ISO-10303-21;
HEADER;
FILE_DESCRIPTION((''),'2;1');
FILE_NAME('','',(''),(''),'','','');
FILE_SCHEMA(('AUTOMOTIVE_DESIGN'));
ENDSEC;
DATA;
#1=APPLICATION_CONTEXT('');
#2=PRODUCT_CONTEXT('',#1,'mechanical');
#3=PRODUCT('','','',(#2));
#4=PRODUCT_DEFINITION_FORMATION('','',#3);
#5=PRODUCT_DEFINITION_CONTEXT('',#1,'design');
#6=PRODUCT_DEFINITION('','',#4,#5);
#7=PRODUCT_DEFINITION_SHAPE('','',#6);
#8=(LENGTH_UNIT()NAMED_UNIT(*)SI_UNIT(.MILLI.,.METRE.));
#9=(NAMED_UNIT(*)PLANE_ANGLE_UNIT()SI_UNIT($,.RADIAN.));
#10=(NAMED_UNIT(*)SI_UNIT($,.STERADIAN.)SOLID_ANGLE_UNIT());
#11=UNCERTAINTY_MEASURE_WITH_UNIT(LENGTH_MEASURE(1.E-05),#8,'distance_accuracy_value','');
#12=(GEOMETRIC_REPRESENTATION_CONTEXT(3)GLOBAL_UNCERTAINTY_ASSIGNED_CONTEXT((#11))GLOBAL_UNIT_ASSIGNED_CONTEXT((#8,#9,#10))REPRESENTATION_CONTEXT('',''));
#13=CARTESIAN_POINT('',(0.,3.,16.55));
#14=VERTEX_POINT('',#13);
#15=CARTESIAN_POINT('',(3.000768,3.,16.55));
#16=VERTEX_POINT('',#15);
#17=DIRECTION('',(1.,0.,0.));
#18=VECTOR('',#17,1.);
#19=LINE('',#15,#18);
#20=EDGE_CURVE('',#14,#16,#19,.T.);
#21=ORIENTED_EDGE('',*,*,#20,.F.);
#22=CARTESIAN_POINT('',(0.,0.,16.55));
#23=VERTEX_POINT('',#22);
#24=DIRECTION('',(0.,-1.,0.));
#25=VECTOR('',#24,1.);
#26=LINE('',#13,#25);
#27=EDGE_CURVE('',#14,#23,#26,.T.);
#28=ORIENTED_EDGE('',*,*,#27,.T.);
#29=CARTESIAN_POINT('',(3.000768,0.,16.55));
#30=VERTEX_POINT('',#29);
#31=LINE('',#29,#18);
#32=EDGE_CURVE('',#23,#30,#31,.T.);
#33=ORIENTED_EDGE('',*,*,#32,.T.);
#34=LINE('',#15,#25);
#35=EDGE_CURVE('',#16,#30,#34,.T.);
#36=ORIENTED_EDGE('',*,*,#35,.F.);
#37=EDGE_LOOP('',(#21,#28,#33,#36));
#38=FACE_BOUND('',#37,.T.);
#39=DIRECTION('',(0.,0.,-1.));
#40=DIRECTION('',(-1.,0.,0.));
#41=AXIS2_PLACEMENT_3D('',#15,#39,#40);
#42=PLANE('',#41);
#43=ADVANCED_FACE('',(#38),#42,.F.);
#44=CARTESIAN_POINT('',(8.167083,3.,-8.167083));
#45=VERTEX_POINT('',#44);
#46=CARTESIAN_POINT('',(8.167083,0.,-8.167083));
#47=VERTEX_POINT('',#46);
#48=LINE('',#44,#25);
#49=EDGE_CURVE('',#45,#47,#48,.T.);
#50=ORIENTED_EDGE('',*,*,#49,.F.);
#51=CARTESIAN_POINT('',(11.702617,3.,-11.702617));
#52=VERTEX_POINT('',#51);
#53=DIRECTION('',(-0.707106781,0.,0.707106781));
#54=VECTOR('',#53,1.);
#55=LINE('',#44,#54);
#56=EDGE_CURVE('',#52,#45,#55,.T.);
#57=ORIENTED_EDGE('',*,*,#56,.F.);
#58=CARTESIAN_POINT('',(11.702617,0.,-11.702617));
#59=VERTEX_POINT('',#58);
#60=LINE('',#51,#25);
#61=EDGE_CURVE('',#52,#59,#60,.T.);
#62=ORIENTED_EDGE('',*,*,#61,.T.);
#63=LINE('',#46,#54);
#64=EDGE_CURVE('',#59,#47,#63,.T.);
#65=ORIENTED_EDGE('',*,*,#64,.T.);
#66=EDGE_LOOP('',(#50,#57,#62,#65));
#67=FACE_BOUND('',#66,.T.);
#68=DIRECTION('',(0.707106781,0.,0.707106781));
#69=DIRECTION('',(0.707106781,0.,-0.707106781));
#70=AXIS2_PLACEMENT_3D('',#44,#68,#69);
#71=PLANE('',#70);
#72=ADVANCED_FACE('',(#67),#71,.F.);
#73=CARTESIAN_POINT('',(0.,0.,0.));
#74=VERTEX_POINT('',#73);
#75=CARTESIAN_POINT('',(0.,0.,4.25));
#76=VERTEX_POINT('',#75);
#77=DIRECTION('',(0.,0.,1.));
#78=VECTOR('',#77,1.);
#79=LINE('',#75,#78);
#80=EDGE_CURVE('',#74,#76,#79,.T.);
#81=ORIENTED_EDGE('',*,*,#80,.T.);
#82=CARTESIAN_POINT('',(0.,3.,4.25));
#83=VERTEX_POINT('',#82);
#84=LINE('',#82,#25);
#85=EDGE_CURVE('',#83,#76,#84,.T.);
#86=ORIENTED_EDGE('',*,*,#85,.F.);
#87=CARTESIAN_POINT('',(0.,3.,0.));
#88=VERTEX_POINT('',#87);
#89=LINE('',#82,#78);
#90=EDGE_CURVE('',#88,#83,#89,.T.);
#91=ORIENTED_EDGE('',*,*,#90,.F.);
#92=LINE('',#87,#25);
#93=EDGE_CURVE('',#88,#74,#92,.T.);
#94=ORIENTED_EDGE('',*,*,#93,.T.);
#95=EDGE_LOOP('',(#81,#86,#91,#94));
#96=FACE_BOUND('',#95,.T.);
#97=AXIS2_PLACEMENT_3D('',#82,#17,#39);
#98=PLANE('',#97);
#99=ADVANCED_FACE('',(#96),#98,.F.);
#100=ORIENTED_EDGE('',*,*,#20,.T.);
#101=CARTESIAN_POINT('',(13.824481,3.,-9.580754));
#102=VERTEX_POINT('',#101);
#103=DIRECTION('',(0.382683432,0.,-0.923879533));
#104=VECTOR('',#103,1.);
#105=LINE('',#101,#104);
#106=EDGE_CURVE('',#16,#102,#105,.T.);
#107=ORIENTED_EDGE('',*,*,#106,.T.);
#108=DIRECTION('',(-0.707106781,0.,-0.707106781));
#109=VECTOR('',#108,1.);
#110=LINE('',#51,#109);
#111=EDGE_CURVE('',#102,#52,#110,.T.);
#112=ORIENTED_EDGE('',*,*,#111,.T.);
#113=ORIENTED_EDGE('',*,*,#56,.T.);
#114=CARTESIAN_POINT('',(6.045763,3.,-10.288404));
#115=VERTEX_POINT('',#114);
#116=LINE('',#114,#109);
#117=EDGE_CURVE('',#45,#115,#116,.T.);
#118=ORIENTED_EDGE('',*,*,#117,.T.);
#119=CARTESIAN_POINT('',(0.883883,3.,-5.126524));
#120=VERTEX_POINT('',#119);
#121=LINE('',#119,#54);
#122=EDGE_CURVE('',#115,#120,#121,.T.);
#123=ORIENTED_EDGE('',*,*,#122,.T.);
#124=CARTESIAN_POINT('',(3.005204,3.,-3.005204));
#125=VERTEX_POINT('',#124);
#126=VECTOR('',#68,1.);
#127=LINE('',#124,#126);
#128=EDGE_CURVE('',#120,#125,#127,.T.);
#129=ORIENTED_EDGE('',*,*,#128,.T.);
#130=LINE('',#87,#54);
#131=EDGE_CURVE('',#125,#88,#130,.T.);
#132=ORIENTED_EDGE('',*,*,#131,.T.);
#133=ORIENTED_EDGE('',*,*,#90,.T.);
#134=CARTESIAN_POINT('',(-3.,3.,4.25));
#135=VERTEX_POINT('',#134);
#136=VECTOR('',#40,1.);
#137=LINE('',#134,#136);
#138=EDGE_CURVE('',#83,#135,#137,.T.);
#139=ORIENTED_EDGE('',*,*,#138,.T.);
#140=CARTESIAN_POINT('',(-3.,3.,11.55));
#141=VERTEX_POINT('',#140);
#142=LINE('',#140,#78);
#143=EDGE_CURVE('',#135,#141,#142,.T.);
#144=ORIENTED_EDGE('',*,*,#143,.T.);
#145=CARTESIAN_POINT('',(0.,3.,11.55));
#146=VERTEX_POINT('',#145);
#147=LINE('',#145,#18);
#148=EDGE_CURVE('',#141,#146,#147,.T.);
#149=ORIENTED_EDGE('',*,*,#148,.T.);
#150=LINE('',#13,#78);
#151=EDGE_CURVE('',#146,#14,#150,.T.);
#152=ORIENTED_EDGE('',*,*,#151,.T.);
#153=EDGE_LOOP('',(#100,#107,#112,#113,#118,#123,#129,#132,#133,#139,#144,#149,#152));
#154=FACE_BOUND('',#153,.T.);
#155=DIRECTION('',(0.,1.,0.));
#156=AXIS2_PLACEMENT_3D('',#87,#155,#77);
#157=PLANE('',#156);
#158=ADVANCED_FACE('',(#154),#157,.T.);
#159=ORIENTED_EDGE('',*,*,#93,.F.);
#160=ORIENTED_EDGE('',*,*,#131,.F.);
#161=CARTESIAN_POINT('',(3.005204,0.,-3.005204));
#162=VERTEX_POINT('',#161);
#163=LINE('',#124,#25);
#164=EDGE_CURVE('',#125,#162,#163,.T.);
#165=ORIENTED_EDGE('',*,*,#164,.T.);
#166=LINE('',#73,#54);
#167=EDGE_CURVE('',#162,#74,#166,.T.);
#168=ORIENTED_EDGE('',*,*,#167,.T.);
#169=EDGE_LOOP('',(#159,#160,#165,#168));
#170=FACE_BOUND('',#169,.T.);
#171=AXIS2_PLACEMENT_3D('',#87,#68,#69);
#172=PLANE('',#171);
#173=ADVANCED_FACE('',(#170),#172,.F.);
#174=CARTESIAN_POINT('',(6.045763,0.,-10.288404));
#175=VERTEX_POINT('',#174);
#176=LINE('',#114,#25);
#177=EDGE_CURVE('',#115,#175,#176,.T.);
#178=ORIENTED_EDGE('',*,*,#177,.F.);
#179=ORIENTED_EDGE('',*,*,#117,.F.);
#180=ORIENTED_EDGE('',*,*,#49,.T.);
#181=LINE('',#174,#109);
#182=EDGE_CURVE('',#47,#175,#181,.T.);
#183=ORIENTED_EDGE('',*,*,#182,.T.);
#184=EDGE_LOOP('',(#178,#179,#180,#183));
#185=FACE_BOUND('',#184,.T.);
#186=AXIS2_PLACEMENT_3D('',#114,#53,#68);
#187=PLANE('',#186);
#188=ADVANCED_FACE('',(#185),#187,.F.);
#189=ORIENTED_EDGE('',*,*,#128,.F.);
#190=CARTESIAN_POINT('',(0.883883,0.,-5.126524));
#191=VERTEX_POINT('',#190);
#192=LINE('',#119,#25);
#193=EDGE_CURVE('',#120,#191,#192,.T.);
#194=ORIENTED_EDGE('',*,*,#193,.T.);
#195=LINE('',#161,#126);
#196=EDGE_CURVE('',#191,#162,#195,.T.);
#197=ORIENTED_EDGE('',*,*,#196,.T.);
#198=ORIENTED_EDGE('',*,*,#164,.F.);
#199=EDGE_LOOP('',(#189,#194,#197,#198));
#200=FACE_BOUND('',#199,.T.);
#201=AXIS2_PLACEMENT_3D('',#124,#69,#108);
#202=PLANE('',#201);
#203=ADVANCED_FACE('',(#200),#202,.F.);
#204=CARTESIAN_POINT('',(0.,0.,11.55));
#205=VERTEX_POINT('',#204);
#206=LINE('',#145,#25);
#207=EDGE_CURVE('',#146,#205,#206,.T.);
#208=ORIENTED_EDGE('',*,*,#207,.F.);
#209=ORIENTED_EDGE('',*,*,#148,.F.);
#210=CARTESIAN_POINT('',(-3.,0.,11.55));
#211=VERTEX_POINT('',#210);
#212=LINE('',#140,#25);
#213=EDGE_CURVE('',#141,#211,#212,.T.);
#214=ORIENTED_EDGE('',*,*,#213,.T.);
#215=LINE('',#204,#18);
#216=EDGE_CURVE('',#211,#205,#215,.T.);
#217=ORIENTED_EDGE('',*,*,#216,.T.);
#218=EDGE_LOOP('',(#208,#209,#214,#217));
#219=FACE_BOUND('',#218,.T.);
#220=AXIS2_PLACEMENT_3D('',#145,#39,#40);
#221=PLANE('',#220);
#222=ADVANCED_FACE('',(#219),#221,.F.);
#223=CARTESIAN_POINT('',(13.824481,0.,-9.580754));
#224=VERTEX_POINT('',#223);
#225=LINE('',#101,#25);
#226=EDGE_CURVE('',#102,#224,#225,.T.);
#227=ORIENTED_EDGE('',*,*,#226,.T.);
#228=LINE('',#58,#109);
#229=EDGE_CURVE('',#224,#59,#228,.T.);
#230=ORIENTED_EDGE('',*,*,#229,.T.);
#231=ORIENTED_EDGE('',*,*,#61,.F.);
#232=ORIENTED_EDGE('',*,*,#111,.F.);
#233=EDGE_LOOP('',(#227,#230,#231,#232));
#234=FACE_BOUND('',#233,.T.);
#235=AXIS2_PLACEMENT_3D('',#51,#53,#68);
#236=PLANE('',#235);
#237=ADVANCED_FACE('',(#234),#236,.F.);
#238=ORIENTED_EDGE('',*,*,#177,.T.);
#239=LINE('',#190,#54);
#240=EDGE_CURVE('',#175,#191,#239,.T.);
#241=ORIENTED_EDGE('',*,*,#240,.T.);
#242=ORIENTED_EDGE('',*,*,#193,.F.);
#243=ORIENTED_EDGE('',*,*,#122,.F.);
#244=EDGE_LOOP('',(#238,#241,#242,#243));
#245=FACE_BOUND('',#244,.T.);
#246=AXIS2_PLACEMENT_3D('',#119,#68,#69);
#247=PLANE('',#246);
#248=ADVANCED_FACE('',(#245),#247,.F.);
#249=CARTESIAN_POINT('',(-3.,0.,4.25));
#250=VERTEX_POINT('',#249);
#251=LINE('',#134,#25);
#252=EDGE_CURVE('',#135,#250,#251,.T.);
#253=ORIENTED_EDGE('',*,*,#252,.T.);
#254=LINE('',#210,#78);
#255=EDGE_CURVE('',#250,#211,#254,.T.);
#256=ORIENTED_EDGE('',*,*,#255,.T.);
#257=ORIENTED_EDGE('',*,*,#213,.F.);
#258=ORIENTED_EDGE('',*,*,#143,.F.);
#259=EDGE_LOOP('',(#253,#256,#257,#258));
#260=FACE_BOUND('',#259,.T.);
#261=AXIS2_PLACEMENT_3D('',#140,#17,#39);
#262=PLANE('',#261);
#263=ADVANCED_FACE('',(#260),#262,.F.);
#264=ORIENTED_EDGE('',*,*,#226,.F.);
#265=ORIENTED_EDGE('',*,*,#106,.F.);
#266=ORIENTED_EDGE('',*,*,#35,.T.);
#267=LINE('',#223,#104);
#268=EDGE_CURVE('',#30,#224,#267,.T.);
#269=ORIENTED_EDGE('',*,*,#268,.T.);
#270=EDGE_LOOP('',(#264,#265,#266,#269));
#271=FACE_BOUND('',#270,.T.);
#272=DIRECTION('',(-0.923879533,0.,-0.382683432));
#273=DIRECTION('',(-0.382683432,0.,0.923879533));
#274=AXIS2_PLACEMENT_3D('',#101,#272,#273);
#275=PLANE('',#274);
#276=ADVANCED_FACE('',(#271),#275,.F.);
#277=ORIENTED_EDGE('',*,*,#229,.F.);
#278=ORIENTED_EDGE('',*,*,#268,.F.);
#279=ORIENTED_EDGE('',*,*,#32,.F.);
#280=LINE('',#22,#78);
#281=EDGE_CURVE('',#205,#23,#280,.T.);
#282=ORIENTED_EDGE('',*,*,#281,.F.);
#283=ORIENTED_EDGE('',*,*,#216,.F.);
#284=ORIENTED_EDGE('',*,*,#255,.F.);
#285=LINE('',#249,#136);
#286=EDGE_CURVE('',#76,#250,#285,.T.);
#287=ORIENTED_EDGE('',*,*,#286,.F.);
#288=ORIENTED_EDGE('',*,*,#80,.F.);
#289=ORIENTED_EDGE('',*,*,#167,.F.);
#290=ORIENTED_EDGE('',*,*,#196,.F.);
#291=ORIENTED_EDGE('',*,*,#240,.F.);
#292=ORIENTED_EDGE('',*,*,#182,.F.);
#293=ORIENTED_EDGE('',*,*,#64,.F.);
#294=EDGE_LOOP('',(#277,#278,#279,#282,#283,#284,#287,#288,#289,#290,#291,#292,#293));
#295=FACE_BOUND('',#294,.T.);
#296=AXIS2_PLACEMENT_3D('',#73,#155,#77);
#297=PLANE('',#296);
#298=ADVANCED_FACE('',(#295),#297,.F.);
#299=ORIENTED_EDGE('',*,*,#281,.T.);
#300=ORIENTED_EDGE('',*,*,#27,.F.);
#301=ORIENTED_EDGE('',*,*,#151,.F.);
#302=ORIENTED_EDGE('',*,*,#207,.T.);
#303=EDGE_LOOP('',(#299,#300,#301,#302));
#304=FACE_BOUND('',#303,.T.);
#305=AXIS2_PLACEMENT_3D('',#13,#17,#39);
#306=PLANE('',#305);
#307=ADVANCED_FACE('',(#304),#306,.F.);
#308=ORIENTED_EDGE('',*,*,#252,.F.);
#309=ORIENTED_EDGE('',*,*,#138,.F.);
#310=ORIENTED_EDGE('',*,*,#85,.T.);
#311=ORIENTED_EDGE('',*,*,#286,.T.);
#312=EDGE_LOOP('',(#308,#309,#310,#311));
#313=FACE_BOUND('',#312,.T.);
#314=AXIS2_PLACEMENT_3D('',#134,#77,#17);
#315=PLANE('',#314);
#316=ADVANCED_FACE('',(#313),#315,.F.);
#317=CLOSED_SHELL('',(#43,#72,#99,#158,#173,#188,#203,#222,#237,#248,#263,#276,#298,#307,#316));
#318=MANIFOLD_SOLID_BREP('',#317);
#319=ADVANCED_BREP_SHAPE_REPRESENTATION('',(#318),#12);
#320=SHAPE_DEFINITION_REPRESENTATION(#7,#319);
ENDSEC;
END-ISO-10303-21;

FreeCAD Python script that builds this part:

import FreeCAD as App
import Part
import Sketcher

V = App.Vector
Q = App.Units.Quantity

doc = App.newDocument("Part")
body = doc.addObject("PartDesign::Body", "Body")

sketch1 = doc.addObject("Sketcher::SketchObject", "Sketch")
body.addObject(sketch1)
sketch1.AttachmentSupport = (doc.XZ_Plane, [""])
sketch1.MapMode = "FlatFace"
sketch1.addGeometry([
    Part.LineSegment(V(3, 16.6, 0), V(13.8, -9.6, 0)),
    Part.LineSegment(V(13.8, -9.6, 0), V(11.7, -11.7, 0)),
    Part.LineSegment(V(11.7, -11.7, 0), V(8.2, -8.2, 0)),
    Part.LineSegment(V(8.2, -8.2, 0), V(6, -10.3, 0)),
    Part.LineSegment(V(6, -10.3, 0), V(0.9, -5.1, 0)),
    Part.LineSegment(V(0.9, -5.1, 0), V(3, -3, 0)),
    Part.LineSegment(V(3, -3, 0), V(0, 0, 0)),
    Part.LineSegment(V(0, 0, 0), V(0, 4.2, 0)),
    Part.LineSegment(V(0, 4.2, 0), V(-3, 4.2, 0)),
    Part.LineSegment(V(-3, 4.2, 0), V(-3, 11.6, 0)),
    Part.LineSegment(V(-3, 11.6, 0), V(0, 11.6, 0)),
    Part.LineSegment(V(0, 11.6, 0), V(0, 16.6, 0)),
    Part.LineSegment(V(0, 16.6, 0), V(3, 16.6, 0)),
], False)
sketch1.addConstraint([
    Sketcher.Constraint("Coincident", 0, 2, 1, 1),
    Sketcher.Constraint("Coincident", 1, 2, 2, 1),
    Sketcher.Constraint("Coincident", 2, 2, 3, 1),
    Sketcher.Constraint("Coincident", 3, 2, 4, 1),
    Sketcher.Constraint("Coincident", 4, 2, 5, 1),
    Sketcher.Constraint("Coincident", 5, 2, 6, 1),
    Sketcher.Constraint("Coincident", 6, 2, 7, 1),
    Sketcher.Constraint("Coincident", 7, 2, 8, 1),
    Sketcher.Constraint("Coincident", 8, 2, 9, 1),
    Sketcher.Constraint("Coincident", 9, 2, 10, 1),
    Sketcher.Constraint("Coincident", 10, 2, 11, 1),
    Sketcher.Constraint("Coincident", 11, 2, 12, 1),
    Sketcher.Constraint("Coincident", 12, 2, 0, 1),
    Sketcher.Constraint("Vertical", 7),
    Sketcher.Constraint("Horizontal", 8),
    Sketcher.Constraint("Vertical", 9),
    Sketcher.Constraint("Horizontal", 10),
    Sketcher.Constraint("Vertical", 11),
    Sketcher.Constraint("Horizontal", 12),
    Sketcher.Constraint("Coincident", 6, 2, -1, 1),
    Sketcher.Constraint("PointOnObject", 10, 2, -2),
    Sketcher.Constraint("Perpendicular", 1, 2),
    Sketcher.Constraint("Perpendicular", 2, 3),
    Sketcher.Constraint("Perpendicular", 3, 4),
    Sketcher.Constraint("Perpendicular", 4, 5),
    Sketcher.Constraint("Perpendicular", 5, 6),
    Sketcher.Constraint("Equal", 3, 5),
    Sketcher.Constraint("DistanceX", 8, 2, 8, 1, Q("3 mm")),
    Sketcher.Constraint("DistanceY", 11, 1, 11, 2, Q("5 mm")),
    Sketcher.Constraint("Angle", 1, Q("-135 deg")),
    Sketcher.Constraint("Distance", 2, Q("5 mm")),
    Sketcher.Constraint("Distance", 3, Q("3 mm")),
    Sketcher.Constraint("DistanceY", 9, 1, 9, 2, Q("7.3 mm")),
    Sketcher.Constraint("Angle", 0, Q("-67.5 deg")),
    Sketcher.Constraint("Distance", 4, Q("7.3 mm")),
    Sketcher.Constraint("DistanceY", 7, 1, 7, 2, Q("4.25 mm")),
    Sketcher.Constraint("Distance", 6, Q("4.25 mm")),
    Sketcher.Constraint("DistanceX", 12, 1, 12, 2, Q("3.000768 mm")),
])
pad1 = doc.addObject("PartDesign::Pad", "Pad")
body.addObject(pad1)
pad1.Profile = sketch1
pad1.Length = 3
pad1.Reversed = True

doc.recompute()
